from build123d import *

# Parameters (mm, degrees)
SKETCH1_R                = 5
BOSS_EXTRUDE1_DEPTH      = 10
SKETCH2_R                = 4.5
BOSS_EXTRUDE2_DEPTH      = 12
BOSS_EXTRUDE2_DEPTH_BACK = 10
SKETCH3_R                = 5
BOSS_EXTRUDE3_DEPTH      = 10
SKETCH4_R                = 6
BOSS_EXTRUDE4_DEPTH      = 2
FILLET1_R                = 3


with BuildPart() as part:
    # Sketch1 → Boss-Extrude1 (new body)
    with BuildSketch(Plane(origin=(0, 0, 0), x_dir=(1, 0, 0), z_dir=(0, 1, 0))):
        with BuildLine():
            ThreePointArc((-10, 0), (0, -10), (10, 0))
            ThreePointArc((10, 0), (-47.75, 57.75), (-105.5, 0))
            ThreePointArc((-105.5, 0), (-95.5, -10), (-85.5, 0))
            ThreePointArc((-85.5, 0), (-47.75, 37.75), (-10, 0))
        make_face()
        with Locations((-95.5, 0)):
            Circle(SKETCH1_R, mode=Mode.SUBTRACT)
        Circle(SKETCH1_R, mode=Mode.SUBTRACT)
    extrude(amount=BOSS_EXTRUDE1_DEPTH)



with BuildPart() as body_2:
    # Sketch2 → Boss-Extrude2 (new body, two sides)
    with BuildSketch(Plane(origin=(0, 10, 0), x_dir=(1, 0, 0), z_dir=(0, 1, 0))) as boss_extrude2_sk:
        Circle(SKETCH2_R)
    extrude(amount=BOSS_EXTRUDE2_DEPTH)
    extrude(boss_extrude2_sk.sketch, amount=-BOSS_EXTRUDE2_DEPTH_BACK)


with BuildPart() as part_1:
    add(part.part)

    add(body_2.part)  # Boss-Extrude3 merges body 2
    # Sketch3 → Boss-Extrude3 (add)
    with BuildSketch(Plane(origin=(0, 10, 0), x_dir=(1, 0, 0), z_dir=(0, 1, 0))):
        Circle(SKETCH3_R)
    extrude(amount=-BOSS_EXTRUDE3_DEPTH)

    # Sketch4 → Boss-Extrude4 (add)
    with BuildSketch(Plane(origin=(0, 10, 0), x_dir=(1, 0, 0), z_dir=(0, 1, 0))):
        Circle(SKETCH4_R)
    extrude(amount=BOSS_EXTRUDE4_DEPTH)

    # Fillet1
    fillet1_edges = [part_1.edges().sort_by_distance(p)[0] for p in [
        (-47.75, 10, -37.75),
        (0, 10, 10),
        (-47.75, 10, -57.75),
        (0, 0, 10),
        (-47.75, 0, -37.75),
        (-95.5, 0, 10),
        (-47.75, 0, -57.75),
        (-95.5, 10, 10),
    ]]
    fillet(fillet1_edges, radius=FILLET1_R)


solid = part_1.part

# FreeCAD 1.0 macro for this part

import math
import FreeCAD as App
import Part
import Sketcher
Q = App.Units.Quantity


def edges_at(feature, points):
    """Names of the edges that pass closest to the given points."""
    edges = feature.Shape.Edges
    near = lambda p: min(range(len(edges)), key=lambda i: edges[i].distToShape(Part.Vertex(*p))[0])
    return sorted({f"Edge{near(p) + 1}" for p in points})

doc = App.newDocument("Part")
body = doc.addObject("PartDesign::Body", "Body")

sketch1 = doc.addObject("Sketcher::SketchObject", "Sketch")
body.addObject(sketch1)
sketch1.AttachmentSupport = (doc.XZ_Plane, [""])
sketch1.MapMode = "FlatFace"
sketch1.addGeometry(Part.ArcOfCircle(Part.Circle(App.Vector(0, 0, 0), App.Vector(0, 0, 1), 10), math.radians(0), math.radians(180)), False)
sketch1.addGeometry(Part.ArcOfCircle(Part.Circle(App.Vector(-48, 0, 0), App.Vector(0, 0, 1), 58), math.radians(180), math.radians(360)), False)
sketch1.addGeometry(Part.ArcOfCircle(Part.Circle(App.Vector(-96, 0, 0), App.Vector(0, 0, 1), 10), math.radians(0), math.radians(180)), False)
sketch1.addGeometry(Part.ArcOfCircle(Part.Circle(App.Vector(-48, 0, 0), App.Vector(0, 0, 1), 38), math.radians(180), math.radians(360)), False)
sketch1.addGeometry(Part.Circle(App.Vector(-96, 0, 0), App.Vector(0, 0, 1), 5), False)
sketch1.addGeometry(Part.Circle(App.Vector(0, 0, 0), App.Vector(0, 0, 1), 5), False)
sketch1.addConstraint(Sketcher.Constraint("Tangent", 0, 1, 1, 2))
sketch1.addConstraint(Sketcher.Constraint("Tangent", 1, 1, 2, 2))
sketch1.addConstraint(Sketcher.Constraint("Tangent", 2, 1, 3, 1))
sketch1.addConstraint(Sketcher.Constraint("Tangent", 3, 2, 0, 2))
sketch1.addConstraint(Sketcher.Constraint("Coincident", 0, 3, -1, 1))
sketch1.addConstraint(Sketcher.Constraint("Coincident", 5, 3, -1, 1))
sketch1.addConstraint(Sketcher.Constraint("Coincident", 3, 3, 1, 3))
sketch1.addConstraint(Sketcher.Constraint("Coincident", 4, 3, 2, 3))
sketch1.addConstraint(Sketcher.Constraint("Equal", 4, 5))
sketch1.addConstraint(Sketcher.Constraint("PointOnObject", 1, 3, -1))
sketch1.addConstraint(Sketcher.Constraint("PointOnObject", 2, 3, -1))
sketch1.addConstraint(Sketcher.Constraint("Diameter", 4, Q("10 mm")))
sketch1.addConstraint(Sketcher.Constraint("Radius", 0, Q("10 mm")))
sketch1.addConstraint(Sketcher.Constraint("Radius", 1, Q("57.75 mm")))
pad1 = doc.addObject("PartDesign::Pad", "Pad")
body.addObject(pad1)
pad1.Profile = sketch1
pad1.Length = 10
pad1.Reversed = True
body2 = doc.addObject("PartDesign::Body", "Body001")

sketch2 = doc.addObject("Sketcher::SketchObject", "Sketch001")
body2.addObject(sketch2)
sketch2.AttachmentSupport = (doc.getObject("XZ_Plane001"), [""])
sketch2.MapMode = "FlatFace"
sketch2.AttachmentOffset = App.Placement(App.Vector(0, 0, -10), App.Rotation())
sketch2.addGeometry(Part.Circle(App.Vector(0, 0, 0), App.Vector(0, 0, 1), 4.5), False)
sketch2.addConstraint(Sketcher.Constraint("Coincident", 0, 3, -1, 1))
sketch2.addConstraint(Sketcher.Constraint("Diameter", 0, Q("9 mm")))
pad2 = doc.addObject("PartDesign::Pad", "Pad001")
body2.addObject(pad2)
pad2.Profile = sketch2
pad2.Type = "TwoLengths"
pad2.Length = 12
pad2.Length2 = 10
pad2.Reversed = True
body.AllowCompound = True
doc.recompute()

boolean = doc.addObject("PartDesign::Boolean", "Boolean")
body.addObject(boolean)
boolean.Type = "Fuse"
boolean.addObjects([body2])

sketch3 = doc.addObject("Sketcher::SketchObject", "Sketch002")
body.addObject(sketch3)
sketch3.AttachmentSupport = (doc.XZ_Plane, [""])
sketch3.MapMode = "FlatFace"
sketch3.AttachmentOffset = App.Placement(App.Vector(0, 0, -10), App.Rotation())
sketch3.addGeometry(Part.Circle(App.Vector(0, 0, 0), App.Vector(0, 0, 1), 5), False)
sketch3.addConstraint(Sketcher.Constraint("Coincident", 0, 3, -1, 1))
sketch3.addConstraint(Sketcher.Constraint("Diameter", 0, Q("10 mm")))
pad3 = doc.addObject("PartDesign::Pad", "Pad002")
body.addObject(pad3)
pad3.Profile = sketch3
pad3.Length = 10

sketch4 = doc.addObject("Sketcher::SketchObject", "Sketch003")
body.addObject(sketch4)
sketch4.AttachmentSupport = (doc.XZ_Plane, [""])
sketch4.MapMode = "FlatFace"
sketch4.AttachmentOffset = App.Placement(App.Vector(0, 0, -10), App.Rotation())
sketch4.addGeometry(Part.Circle(App.Vector(0, 0, 0), App.Vector(0, 0, 1), 6), False)
sketch4.addConstraint(Sketcher.Constraint("Coincident", 0, 3, -1, 1))
sketch4.addConstraint(Sketcher.Constraint("Diameter", 0, Q("12 mm")))
pad4 = doc.addObject("PartDesign::Pad", "Pad003")
body.addObject(pad4)
pad4.Profile = sketch4
pad4.Length = 2
pad4.Reversed = True
doc.recompute()

fillet = doc.addObject("PartDesign::Fillet", "Fillet")
body.addObject(fillet)
fillet.Base = (pad4, edges_at(pad4, [
    (-47.75, 10, -37.75),
    (0, 10, 10),
    (-47.75, 10, -57.75),
    (0, 0, 10),
    (-47.75, 0, -37.75),
    (-95.5, 0, 10),
    (-47.75, 0, -57.75),
    (-95.5, 10, 10),
]))
fillet.Radius = 3

doc.recompute()
